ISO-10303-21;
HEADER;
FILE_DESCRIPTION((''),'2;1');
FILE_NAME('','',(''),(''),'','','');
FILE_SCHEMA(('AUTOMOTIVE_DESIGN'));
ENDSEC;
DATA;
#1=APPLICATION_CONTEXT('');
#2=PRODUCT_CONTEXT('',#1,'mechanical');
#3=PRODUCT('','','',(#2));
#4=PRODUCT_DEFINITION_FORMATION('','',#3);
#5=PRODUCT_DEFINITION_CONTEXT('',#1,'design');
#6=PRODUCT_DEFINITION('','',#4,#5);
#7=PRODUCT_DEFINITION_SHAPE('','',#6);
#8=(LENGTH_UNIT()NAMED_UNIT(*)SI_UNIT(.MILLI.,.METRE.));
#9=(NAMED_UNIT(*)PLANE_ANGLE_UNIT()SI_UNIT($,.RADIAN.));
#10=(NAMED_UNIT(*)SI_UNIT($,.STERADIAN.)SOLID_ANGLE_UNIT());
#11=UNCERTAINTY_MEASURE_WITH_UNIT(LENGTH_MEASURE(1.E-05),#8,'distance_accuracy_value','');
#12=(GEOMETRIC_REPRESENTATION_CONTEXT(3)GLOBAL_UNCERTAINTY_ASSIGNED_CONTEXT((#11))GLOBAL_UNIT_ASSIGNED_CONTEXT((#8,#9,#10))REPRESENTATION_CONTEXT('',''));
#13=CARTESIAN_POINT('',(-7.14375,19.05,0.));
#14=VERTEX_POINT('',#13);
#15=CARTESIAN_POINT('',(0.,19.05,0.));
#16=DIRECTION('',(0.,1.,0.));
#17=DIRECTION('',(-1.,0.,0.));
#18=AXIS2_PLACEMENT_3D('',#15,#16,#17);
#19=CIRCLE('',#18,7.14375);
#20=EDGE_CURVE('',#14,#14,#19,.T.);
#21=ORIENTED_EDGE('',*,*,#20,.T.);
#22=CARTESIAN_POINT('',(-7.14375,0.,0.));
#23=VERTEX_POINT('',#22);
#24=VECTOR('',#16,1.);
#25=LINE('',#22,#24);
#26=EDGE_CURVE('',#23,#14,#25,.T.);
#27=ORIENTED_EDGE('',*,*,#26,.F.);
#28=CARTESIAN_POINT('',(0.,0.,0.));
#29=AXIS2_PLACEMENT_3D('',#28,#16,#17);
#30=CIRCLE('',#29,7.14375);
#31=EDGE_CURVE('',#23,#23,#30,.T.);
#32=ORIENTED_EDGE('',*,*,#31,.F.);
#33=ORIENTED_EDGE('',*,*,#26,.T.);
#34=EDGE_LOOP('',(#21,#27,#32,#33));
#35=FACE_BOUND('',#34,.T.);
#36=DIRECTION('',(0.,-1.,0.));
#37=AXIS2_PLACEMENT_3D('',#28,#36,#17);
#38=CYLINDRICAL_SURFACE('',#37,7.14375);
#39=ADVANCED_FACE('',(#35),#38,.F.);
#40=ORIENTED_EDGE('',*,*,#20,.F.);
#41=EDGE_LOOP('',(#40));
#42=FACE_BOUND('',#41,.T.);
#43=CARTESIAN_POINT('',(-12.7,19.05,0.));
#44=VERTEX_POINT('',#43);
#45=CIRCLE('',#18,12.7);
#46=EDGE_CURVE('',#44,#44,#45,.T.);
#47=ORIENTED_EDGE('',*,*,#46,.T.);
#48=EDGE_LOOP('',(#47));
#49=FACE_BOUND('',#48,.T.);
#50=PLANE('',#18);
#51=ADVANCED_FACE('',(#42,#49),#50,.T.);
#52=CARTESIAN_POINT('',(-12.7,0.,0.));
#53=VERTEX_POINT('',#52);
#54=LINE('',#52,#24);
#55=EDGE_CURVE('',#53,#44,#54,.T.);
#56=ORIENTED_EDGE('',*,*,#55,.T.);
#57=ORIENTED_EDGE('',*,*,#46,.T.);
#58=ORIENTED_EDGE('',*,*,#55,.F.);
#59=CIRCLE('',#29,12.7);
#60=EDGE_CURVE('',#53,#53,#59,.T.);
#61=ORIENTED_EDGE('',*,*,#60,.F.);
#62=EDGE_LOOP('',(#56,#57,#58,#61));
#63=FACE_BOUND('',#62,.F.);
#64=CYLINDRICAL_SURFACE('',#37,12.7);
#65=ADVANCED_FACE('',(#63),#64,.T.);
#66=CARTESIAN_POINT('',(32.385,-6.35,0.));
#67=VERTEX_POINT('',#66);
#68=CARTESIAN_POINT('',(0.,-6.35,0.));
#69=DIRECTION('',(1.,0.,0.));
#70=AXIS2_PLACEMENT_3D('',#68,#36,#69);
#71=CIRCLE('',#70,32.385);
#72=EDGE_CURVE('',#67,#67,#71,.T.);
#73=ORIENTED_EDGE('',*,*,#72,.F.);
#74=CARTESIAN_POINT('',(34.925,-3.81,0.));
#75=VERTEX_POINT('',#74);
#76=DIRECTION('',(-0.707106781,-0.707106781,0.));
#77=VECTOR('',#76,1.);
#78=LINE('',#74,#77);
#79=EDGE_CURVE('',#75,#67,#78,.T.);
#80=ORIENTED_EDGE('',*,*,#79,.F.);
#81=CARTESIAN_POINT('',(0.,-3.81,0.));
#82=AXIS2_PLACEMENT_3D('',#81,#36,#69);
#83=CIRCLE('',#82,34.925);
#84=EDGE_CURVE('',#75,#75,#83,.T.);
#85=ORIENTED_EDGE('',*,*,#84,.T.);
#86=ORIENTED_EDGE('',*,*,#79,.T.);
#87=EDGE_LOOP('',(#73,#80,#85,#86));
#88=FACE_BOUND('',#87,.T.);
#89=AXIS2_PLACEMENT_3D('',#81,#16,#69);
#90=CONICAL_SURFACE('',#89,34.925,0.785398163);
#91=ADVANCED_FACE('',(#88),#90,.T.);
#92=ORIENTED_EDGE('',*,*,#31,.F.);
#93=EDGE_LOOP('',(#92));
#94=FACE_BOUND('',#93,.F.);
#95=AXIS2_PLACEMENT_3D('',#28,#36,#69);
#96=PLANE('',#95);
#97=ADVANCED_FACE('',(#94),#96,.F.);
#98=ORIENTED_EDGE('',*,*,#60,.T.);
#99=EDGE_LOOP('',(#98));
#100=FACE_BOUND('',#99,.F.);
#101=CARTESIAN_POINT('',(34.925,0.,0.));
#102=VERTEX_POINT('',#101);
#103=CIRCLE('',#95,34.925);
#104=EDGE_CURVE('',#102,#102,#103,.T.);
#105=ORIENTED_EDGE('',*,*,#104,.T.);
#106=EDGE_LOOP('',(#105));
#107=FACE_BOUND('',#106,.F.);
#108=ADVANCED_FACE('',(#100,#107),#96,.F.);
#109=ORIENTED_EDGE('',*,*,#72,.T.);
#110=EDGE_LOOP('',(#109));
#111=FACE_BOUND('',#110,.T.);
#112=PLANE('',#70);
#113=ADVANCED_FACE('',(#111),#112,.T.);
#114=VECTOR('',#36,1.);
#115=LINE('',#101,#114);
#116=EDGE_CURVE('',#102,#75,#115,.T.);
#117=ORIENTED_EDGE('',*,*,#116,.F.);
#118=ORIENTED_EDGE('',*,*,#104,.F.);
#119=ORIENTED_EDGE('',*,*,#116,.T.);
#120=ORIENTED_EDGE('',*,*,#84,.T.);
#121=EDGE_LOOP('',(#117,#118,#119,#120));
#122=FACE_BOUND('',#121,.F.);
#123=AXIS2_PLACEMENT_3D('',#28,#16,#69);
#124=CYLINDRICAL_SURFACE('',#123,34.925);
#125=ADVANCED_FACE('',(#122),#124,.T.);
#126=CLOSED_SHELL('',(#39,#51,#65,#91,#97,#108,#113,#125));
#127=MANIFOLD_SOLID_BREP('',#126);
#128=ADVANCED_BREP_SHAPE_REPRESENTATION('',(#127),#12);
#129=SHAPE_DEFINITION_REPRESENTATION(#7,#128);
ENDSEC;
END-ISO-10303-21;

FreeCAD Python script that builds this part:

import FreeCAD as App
import Part
import Sketcher

V = App.Vector
Q = App.Units.Quantity


def edges_at(feature, points):
    """Names of the edges that pass closest to the given points."""
    edges = feature.Shape.Edges
    near = lambda p: min(range(len(edges)), key=lambda i: edges[i].distToShape(Part.Vertex(*p))[0])
    return sorted({f"Edge{near(p) + 1}" for p in points})

doc = App.newDocument("Part")
body = doc.addObject("PartDesign::Body", "Body")

# Sketch on XZ plane
sketch1 = body.newObject("Sketcher::SketchObject", "Sketch")
sketch1.AttachmentSupport = (doc.getObject("XZ_Plane"), [""])
sketch1.MapMode = "FlatFace"
sketch1.addGeometry(Part.Circle(V(0, 0, 0), V(0, 0, 1), 35), False)
sketch1.addConstraint(Sketcher.Constraint("Coincident", 0, 3, -1, 1))
sketch1.addConstraint(Sketcher.Constraint("Diameter", 0, Q("2.75 in")))
pad1 = body.newObject("PartDesign::Pad", "Pad")
pad1.Profile = sketch1
pad1.Length = Q("0.25 in")
doc.recompute()

chamfer = body.newObject("PartDesign::Chamfer", "Chamfer")
chamfer.Base = (pad1, edges_at(pad1, [(-34.925, -6.35, 0)]))
chamfer.Size = Q("0.1 in")

# Sketch on XZ plane
sketch2 = body.newObject("Sketcher::SketchObject", "Sketch001")
sketch2.AttachmentSupport = (doc.getObject("XZ_Plane"), [""])
sketch2.MapMode = "FlatFace"
sketch2.addGeometry(Part.Circle(V(0, 0, 0), V(0, 0, 1), 13), False)
sketch2.addGeometry(Part.Circle(V(0, 0, 0), V(0, 0, 1), 7), False)
sketch2.addConstraint(Sketcher.Constraint("Coincident", 0, 3, -1, 1))
sketch2.addConstraint(Sketcher.Constraint("Coincident", 1, 3, -1, 1))
sketch2.addConstraint(Sketcher.Constraint("Diameter", 0, Q("1 in")))
sketch2.addConstraint(Sketcher.Constraint("Diameter", 1, Q("0.5625 in")))
pad2 = body.newObject("PartDesign::Pad", "Pad001")
pad2.Profile = sketch2
pad2.Length = Q("0.75 in")
pad2.Reversed = True

doc.recompute()
